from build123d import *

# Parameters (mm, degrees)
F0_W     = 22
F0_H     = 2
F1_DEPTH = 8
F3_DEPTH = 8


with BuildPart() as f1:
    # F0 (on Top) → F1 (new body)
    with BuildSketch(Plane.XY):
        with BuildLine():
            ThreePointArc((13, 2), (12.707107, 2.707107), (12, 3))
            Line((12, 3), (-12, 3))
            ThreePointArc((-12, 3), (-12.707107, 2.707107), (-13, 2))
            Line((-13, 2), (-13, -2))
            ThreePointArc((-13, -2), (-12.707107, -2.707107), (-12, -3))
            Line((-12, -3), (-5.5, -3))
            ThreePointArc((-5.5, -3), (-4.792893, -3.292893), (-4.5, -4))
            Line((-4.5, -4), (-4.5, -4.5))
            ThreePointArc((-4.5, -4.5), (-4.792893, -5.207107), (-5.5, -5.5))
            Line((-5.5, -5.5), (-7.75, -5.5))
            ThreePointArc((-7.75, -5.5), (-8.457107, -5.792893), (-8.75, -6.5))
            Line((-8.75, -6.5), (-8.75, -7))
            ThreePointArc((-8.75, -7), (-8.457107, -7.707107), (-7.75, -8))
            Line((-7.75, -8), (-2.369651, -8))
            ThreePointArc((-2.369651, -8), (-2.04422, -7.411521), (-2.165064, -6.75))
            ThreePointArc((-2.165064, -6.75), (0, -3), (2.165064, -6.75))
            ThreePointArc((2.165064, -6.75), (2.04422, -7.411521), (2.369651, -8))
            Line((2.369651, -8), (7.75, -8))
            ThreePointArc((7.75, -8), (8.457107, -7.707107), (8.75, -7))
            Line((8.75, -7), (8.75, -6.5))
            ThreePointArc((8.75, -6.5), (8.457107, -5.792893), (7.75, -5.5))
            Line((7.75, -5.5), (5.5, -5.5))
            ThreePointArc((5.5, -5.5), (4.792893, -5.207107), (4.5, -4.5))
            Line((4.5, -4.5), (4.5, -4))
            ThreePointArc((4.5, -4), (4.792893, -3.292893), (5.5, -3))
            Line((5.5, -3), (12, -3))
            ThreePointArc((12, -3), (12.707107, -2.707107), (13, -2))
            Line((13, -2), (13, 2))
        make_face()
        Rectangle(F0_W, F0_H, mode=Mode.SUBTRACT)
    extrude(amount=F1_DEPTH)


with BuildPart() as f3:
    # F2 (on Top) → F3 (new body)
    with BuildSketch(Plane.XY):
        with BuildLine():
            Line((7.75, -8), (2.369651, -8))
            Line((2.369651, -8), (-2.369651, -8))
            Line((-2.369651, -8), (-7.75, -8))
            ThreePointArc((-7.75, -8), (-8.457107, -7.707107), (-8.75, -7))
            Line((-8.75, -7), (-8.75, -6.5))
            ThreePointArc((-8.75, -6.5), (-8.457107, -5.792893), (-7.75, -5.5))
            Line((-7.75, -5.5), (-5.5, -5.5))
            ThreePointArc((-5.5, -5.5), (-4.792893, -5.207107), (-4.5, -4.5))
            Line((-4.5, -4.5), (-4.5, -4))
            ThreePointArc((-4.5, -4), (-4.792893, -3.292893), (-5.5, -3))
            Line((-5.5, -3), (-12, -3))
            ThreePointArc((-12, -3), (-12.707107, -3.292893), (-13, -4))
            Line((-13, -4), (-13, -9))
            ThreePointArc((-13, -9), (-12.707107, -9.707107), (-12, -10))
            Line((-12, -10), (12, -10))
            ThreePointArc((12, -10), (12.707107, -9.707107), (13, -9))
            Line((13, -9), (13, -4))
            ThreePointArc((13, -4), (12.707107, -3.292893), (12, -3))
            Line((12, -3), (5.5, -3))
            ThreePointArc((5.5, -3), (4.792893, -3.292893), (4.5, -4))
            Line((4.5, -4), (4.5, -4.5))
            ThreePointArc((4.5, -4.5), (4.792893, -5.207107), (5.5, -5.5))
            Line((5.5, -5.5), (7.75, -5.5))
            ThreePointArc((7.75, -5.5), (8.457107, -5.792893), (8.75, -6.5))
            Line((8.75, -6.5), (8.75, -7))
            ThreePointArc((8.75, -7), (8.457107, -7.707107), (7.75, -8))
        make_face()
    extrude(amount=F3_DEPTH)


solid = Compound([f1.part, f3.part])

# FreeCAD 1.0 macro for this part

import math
import FreeCAD as App
import Part
import Sketcher
Q = App.Units.Quantity

doc = App.newDocument("Part")
body = doc.addObject("PartDesign::Body", "Body")

sketch1 = body.newObject("Sketcher::SketchObject", "Sketch")
sketch1.AttachmentSupport = (doc.getObject("XY_Plane"), [""])
sketch1.MapMode = "FlatFace"
sketch1.addGeometry(Part.ArcOfCircle(Part.Circle(App.Vector(12.000001, 2.000001, 0), App.Vector(0, 0, 1), 0.999999), math.radians(-0.000043), math.radians(90.000043)), False)
sketch1.addGeometry(Part.LineSegment(App.Vector(12, 3, 0), App.Vector(-12, 3, 0)), False)
sketch1.addGeometry(Part.ArcOfCircle(Part.Circle(App.Vector(-12.000001, 2.000001, 0), App.Vector(0, 0, 1), 0.999999), math.radians(89.999957), math.radians(180.000043)), False)
sketch1.addGeometry(Part.LineSegment(App.Vector(-13, 2, 0), App.Vector(-13, -2, 0)), False)
sketch1.addGeometry(Part.ArcOfCircle(Part.Circle(App.Vector(-12.000001, -2.000001, 0), App.Vector(0, 0, 1), 0.999999), math.radians(179.999957), math.radians(270.000043)), False)
sketch1.addGeometry(Part.LineSegment(App.Vector(-12, -3, 0), App.Vector(-5.5, -3, 0)), False)
sketch1.addGeometry(Part.ArcOfCircle(Part.Circle(App.Vector(-5.499999, -3.999999, 0), App.Vector(0, 0, 1), 0.999999), math.radians(-0.000043), math.radians(90.000043)), False)
sketch1.addGeometry(Part.LineSegment(App.Vector(-4.5, -4, 0), App.Vector(-4.5, -4.5, 0)), False)
sketch1.addGeometry(Part.ArcOfCircle(Part.Circle(App.Vector(-5.499999, -4.500001, 0), App.Vector(0, 0, 1), 0.999999), math.radians(-90.000043), math.radians(0.000043)), False)
sketch1.addGeometry(Part.LineSegment(App.Vector(-5.5, -5.5, 0), App.Vector(-7.75, -5.5, 0)), False)
sketch1.addGeometry(Part.ArcOfCircle(Part.Circle(App.Vector(-7.750001, -6.499999, 0), App.Vector(0, 0, 1), 0.999999), math.radians(89.999957), math.radians(180.000043)), False)
sketch1.addGeometry(Part.LineSegment(App.Vector(-8.75, -6.5, 0), App.Vector(-8.75, -7, 0)), False)
sketch1.addGeometry(Part.ArcOfCircle(Part.Circle(App.Vector(-7.750001, -7.000001, 0), App.Vector(0, 0, 1), 0.999999), math.radians(179.999957), math.radians(270.000043)), False)
sketch1.addGeometry(Part.LineSegment(App.Vector(-7.75, -8, 0), App.Vector(-2.369651, -8, 0)), False)
sketch1.addGeometry(Part.ArcOfCircle(Part.Circle(App.Vector(-3.03109, -7.25, 0), App.Vector(0, 0, 1), 1), math.radians(-48.59033), math.radians(30.000003)), False)
sketch1.addGeometry(Part.ArcOfCircle(Part.Circle(App.Vector(0, -5.5, 0), App.Vector(0, 0, 1), 2.5), math.radians(-29.999989), math.radians(209.999989)), False)
sketch1.addGeometry(Part.ArcOfCircle(Part.Circle(App.Vector(3.03109, -7.25, 0), App.Vector(0, 0, 1), 1), math.radians(149.999997), math.radians(228.59033)), False)
sketch1.addGeometry(Part.LineSegment(App.Vector(2.369651, -8, 0), App.Vector(7.75, -8, 0)), False)
sketch1.addGeometry(Part.ArcOfCircle(Part.Circle(App.Vector(7.750001, -7.000001, 0), App.Vector(0, 0, 1), 0.999999), math.radians(-90.000043), math.radians(0.000043)), False)
sketch1.addGeometry(Part.LineSegment(App.Vector(8.75, -7, 0), App.Vector(8.75, -6.5, 0)), False)
sketch1.addGeometry(Part.ArcOfCircle(Part.Circle(App.Vector(7.750001, -6.499999, 0), App.Vector(0, 0, 1), 0.999999), math.radians(-0.000043), math.radians(90.000043)), False)
sketch1.addGeometry(Part.LineSegment(App.Vector(7.75, -5.5, 0), App.Vector(5.5, -5.5, 0)), False)
sketch1.addGeometry(Part.ArcOfCircle(Part.Circle(App.Vector(5.499999, -4.500001, 0), App.Vector(0, 0, 1), 0.999999), math.radians(179.999957), math.radians(270.000043)), False)
sketch1.addGeometry(Part.LineSegment(App.Vector(4.5, -4.5, 0), App.Vector(4.5, -4, 0)), False)
sketch1.addGeometry(Part.ArcOfCircle(Part.Circle(App.Vector(5.499999, -3.999999, 0), App.Vector(0, 0, 1), 0.999999), math.radians(89.999957), math.radians(180.000043)), False)
sketch1.addGeometry(Part.LineSegment(App.Vector(5.5, -3, 0), App.Vector(12, -3, 0)), False)
sketch1.addGeometry(Part.ArcOfCircle(Part.Circle(App.Vector(12.000001, -2.000001, 0), App.Vector(0, 0, 1), 0.999999), math.radians(-90.000043), math.radians(0.000043)), False)
sketch1.addGeometry(Part.LineSegment(App.Vector(13, -2, 0), App.Vector(13, 2, 0)), False)
sketch1.addGeometry(Part.LineSegment(App.Vector(11, -1, 0), App.Vector(-11, -1, 0)), False)
sketch1.addGeometry(Part.LineSegment(App.Vector(-11, -1, 0), App.Vector(-11, 1, 0)), False)
sketch1.addGeometry(Part.LineSegment(App.Vector(-11, 1, 0), App.Vector(11, 1, 0)), False)
sketch1.addGeometry(Part.LineSegment(App.Vector(11, 1, 0), App.Vector(11, -1, 0)), False)
sketch1.addConstraint(Sketcher.Constraint("Tangent", 0, 2, 1, 1))
sketch1.addConstraint(Sketcher.Constraint("Tangent", 1, 2, 2, 1))
sketch1.addConstraint(Sketcher.Constraint("Tangent", 2, 2, 3, 1))
sketch1.addConstraint(Sketcher.Constraint("Tangent", 3, 2, 4, 1))
sketch1.addConstraint(Sketcher.Constraint("Tangent", 4, 2, 5, 1))
sketch1.addConstraint(Sketcher.Constraint("Tangent", 5, 2, 6, 2))
sketch1.addConstraint(Sketcher.Constraint("Tangent", 6, 1, 7, 1))
sketch1.addConstraint(Sketcher.Constraint("Tangent", 7, 2, 8, 2))
sketch1.addConstraint(Sketcher.Constraint("Tangent", 8, 1, 9, 1))
sketch1.addConstraint(Sketcher.Constraint("Tangent", 9, 2, 10, 1))
sketch1.addConstraint(Sketcher.Constraint("Tangent", 10, 2, 11, 1))
sketch1.addConstraint(Sketcher.Constraint("Tangent", 11, 2, 12, 1))
sketch1.addConstraint(Sketcher.Constraint("Tangent", 12, 2, 13, 1))
sketch1.addConstraint(Sketcher.Constraint("Coincident", 13, 2, 14, 1))
sketch1.addConstraint(Sketcher.Constraint("Tangent", 14, 2, 15, 2))
sketch1.addConstraint(Sketcher.Constraint("Tangent", 15, 1, 16, 1))
sketch1.addConstraint(Sketcher.Constraint("Coincident", 16, 2, 17, 1))
sketch1.addConstraint(Sketcher.Constraint("Tangent", 17, 2, 18, 1))
sketch1.addConstraint(Sketcher.Constraint("Tangent", 18, 2, 19, 1))
sketch1.addConstraint(Sketcher.Constraint("Tangent", 19, 2, 20, 1))
sketch1.addConstraint(Sketcher.Constraint("Tangent", 20, 2, 21, 1))
sketch1.addConstraint(Sketcher.Constraint("Tangent", 21, 2, 22, 2))
sketch1.addConstraint(Sketcher.Constraint("Tangent", 22, 1, 23, 1))
sketch1.addConstraint(Sketcher.Constraint("Tangent", 23, 2, 24, 2))
sketch1.addConstraint(Sketcher.Constraint("Tangent", 24, 1, 25, 1))
sketch1.addConstraint(Sketcher.Constraint("Tangent", 25, 2, 26, 1))
sketch1.addConstraint(Sketcher.Constraint("Tangent", 26, 2, 27, 1))
sketch1.addConstraint(Sketcher.Constraint("Tangent", 27, 2, 0, 1))
sketch1.addConstraint(Sketcher.Constraint("Coincident", 28, 2, 29, 1))
sketch1.addConstraint(Sketcher.Constraint("Coincident", 29, 2, 30, 1))
sketch1.addConstraint(Sketcher.Constraint("Coincident", 30, 2, 31, 1))
sketch1.addConstraint(Sketcher.Constraint("Coincident", 31, 2, 28, 1))
sketch1.addConstraint(Sketcher.Constraint("Horizontal", 1))
sketch1.addConstraint(Sketcher.Constraint("Vertical", 3))
sketch1.addConstraint(Sketcher.Constraint("Horizontal", 5))
sketch1.addConstraint(Sketcher.Constraint("Vertical", 7))
sketch1.addConstraint(Sketcher.Constraint("Horizontal", 9))
sketch1.addConstraint(Sketcher.Constraint("Vertical", 11))
sketch1.addConstraint(Sketcher.Constraint("Horizontal", 13))
sketch1.addConstraint(Sketcher.Constraint("Horizontal", 17))
sketch1.addConstraint(Sketcher.Constraint("Vertical", 19))
sketch1.addConstraint(Sketcher.Constraint("Horizontal", 21))
sketch1.addConstraint(Sketcher.Constraint("Vertical", 23))
sketch1.addConstraint(Sketcher.Constraint("Horizontal", 25))
sketch1.addConstraint(Sketcher.Constraint("Vertical", 27))
sketch1.addConstraint(Sketcher.Constraint("Horizontal", 28))
sketch1.addConstraint(Sketcher.Constraint("Vertical", 29))
sketch1.addConstraint(Sketcher.Constraint("Horizontal", 30))
sketch1.addConstraint(Sketcher.Constraint("Vertical", 31))
sketch1.addConstraint(Sketcher.Constraint("Equal", 0, 2))
sketch1.addConstraint(Sketcher.Constraint("Equal", 2, 4))
sketch1.addConstraint(Sketcher.Constraint("Equal", 4, 6))
sketch1.addConstraint(Sketcher.Constraint("Equal", 6, 8))
sketch1.addConstraint(Sketcher.Constraint("Equal", 8, 10))
sketch1.addConstraint(Sketcher.Constraint("Equal", 10, 12))
sketch1.addConstraint(Sketcher.Constraint("Equal", 12, 14))
sketch1.addConstraint(Sketcher.Constraint("Equal", 14, 16))
sketch1.addConstraint(Sketcher.Constraint("Equal", 16, 18))
sketch1.addConstraint(Sketcher.Constraint("Equal", 18, 20))
sketch1.addConstraint(Sketcher.Constraint("Equal", 20, 22))
sketch1.addConstraint(Sketcher.Constraint("Equal", 22, 24))
sketch1.addConstraint(Sketcher.Constraint("Equal", 24, 26))
sketch1.addConstraint(Sketcher.Constraint("Symmetric", 0, 3, 4, 3, -1, 1))
sketch1.addConstraint(Sketcher.Constraint("Symmetric", 28, 2, 30, 2, -1, 1))
sketch1.addConstraint(Sketcher.Constraint("Symmetric", 14, 3, 16, 3, -2))
sketch1.addConstraint(Sketcher.Constraint("Symmetric", 12, 3, 18, 3, -2))
sketch1.addConstraint(Sketcher.Constraint("Symmetric", 8, 3, 22, 3, -2))
sketch1.addConstraint(Sketcher.Constraint("Horizontal", 6, 3, 24, 3))
sketch1.addConstraint(Sketcher.Constraint("Horizontal", 15, 3, 8, 1))
sketch1.addConstraint(Sketcher.Constraint("Equal", 7, 11))
sketch1.addConstraint(Sketcher.Constraint("Radius", 0, Q("0.999999 mm")))
sketch1.addConstraint(Sketcher.Constraint("Radius", 15, Q("2.5 mm")))
sketch1.addConstraint(Sketcher.Constraint("DistanceX", 1, 2, 1, 1, Q("24 mm")))
sketch1.addConstraint(Sketcher.Constraint("DistanceX", 28, 2, 28, 1, Q("22 mm")))
sketch1.addConstraint(Sketcher.Constraint("DistanceY", 3, 2, 3, 1, Q("4 mm")))
sketch1.addConstraint(Sketcher.Constraint("DistanceY", 29, 1, 29, 2, Q("2 mm")))
sketch1.addConstraint(Sketcher.Constraint("DistanceX", 5, 1, 5, 2, Q("6.5 mm")))
sketch1.addConstraint(Sketcher.Constraint("DistanceY", 7, 2, 7, 1, Q("0.5 mm")))
sketch1.addConstraint(Sketcher.Constraint("DistanceX", 9, 2, 9, 1, Q("2.25 mm")))
sketch1.addConstraint(Sketcher.Constraint("DistanceY", 14, 3, 14, 2, Q("0.5 mm")))
pad1 = body.newObject("PartDesign::Pad", "Pad")
pad1.Profile = sketch1
pad1.Length = 8
body2 = doc.addObject("PartDesign::Body", "Body001")

sketch2 = body2.newObject("Sketcher::SketchObject", "Sketch001")
sketch2.AttachmentSupport = (doc.getObject("XY_Plane001"), [""])
sketch2.MapMode = "FlatFace"
sketch2.addGeometry(Part.LineSegment(App.Vector(7.75, -8, 0), App.Vector(-7.75, -8, 0)), False)
sketch2.addGeometry(Part.ArcOfCircle(Part.Circle(App.Vector(-7.750001, -7.000001, 0), App.Vector(0, 0, 1), 0.999999), math.radians(179.999957), math.radians(270.000043)), False)
sketch2.addGeometry(Part.LineSegment(App.Vector(-8.75, -7, 0), App.Vector(-8.75, -6.5, 0)), False)
sketch2.addGeometry(Part.ArcOfCircle(Part.Circle(App.Vector(-7.750001, -6.499999, 0), App.Vector(0, 0, 1), 0.999999), math.radians(89.999957), math.radians(180.000043)), False)
sketch2.addGeometry(Part.LineSegment(App.Vector(-7.75, -5.5, 0), App.Vector(-5.5, -5.5, 0)), False)
sketch2.addGeometry(Part.ArcOfCircle(Part.Circle(App.Vector(-5.499999, -4.500001, 0), App.Vector(0, 0, 1), 0.999999), math.radians(-90.000043), math.radians(0.000043)), False)
sketch2.addGeometry(Part.LineSegment(App.Vector(-4.5, -4.5, 0), App.Vector(-4.5, -4, 0)), False)
sketch2.addGeometry(Part.ArcOfCircle(Part.Circle(App.Vector(-5.499999, -3.999999, 0), App.Vector(0, 0, 1), 0.999999), math.radians(-0.000043), math.radians(90.000043)), False)
sketch2.addGeometry(Part.LineSegment(App.Vector(-5.5, -3, 0), App.Vector(-12, -3, 0)), False)
sketch2.addGeometry(Part.ArcOfCircle(Part.Circle(App.Vector(-12.000001, -3.999999, 0), App.Vector(0, 0, 1), 0.999999), math.radians(89.999957), math.radians(180.000043)), False)
sketch2.addGeometry(Part.LineSegment(App.Vector(-13, -4, 0), App.Vector(-13, -9, 0)), False)
sketch2.addGeometry(Part.ArcOfCircle(Part.Circle(App.Vector(-12.000001, -9.000001, 0), App.Vector(0, 0, 1), 0.999999), math.radians(179.999957), math.radians(270.000043)), False)
sketch2.addGeometry(Part.LineSegment(App.Vector(-12, -10, 0), App.Vector(12, -10, 0)), False)
sketch2.addGeometry(Part.ArcOfCircle(Part.Circle(App.Vector(12.000001, -9.000001, 0), App.Vector(0, 0, 1), 0.999999), math.radians(-90.000043), math.radians(0.000043)), False)
sketch2.addGeometry(Part.LineSegment(App.Vector(13, -9, 0), App.Vector(13, -4, 0)), False)
sketch2.addGeometry(Part.ArcOfCircle(Part.Circle(App.Vector(12.000001, -3.999999, 0), App.Vector(0, 0, 1), 0.999999), math.radians(-0.000043), math.radians(90.000043)), False)
sketch2.addGeometry(Part.LineSegment(App.Vector(12, -3, 0), App.Vector(5.5, -3, 0)), False)
sketch2.addGeometry(Part.ArcOfCircle(Part.Circle(App.Vector(5.499999, -3.999999, 0), App.Vector(0, 0, 1), 0.999999), math.radians(89.999957), math.radians(180.000043)), False)
sketch2.addGeometry(Part.LineSegment(App.Vector(4.5, -4, 0), App.Vector(4.5, -4.5, 0)), False)
sketch2.addGeometry(Part.ArcOfCircle(Part.Circle(App.Vector(5.499999, -4.500001, 0), App.Vector(0, 0, 1), 0.999999), math.radians(179.999957), math.radians(270.000043)), False)
sketch2.addGeometry(Part.LineSegment(App.Vector(5.5, -5.5, 0), App.Vector(7.75, -5.5, 0)), False)
sketch2.addGeometry(Part.ArcOfCircle(Part.Circle(App.Vector(7.750001, -6.499999, 0), App.Vector(0, 0, 1), 0.999999), math.radians(-0.000043), math.radians(90.000043)), False)
sketch2.addGeometry(Part.LineSegment(App.Vector(8.75, -6.5, 0), App.Vector(8.75, -7, 0)), False)
sketch2.addGeometry(Part.ArcOfCircle(Part.Circle(App.Vector(7.750001, -7.000001, 0), App.Vector(0, 0, 1), 0.999999), math.radians(-90.000043), math.radians(0.000043)), False)
sketch2.addConstraint(Sketcher.Constraint("Tangent", 0, 2, 1, 2))
sketch2.addConstraint(Sketcher.Constraint("Tangent", 1, 1, 2, 1))
sketch2.addConstraint(Sketcher.Constraint("Tangent", 2, 2, 3, 2))
sketch2.addConstraint(Sketcher.Constraint("Tangent", 3, 1, 4, 1))
sketch2.addConstraint(Sketcher.Constraint("Tangent", 4, 2, 5, 1))
sketch2.addConstraint(Sketcher.Constraint("Tangent", 5, 2, 6, 1))
sketch2.addConstraint(Sketcher.Constraint("Tangent", 6, 2, 7, 1))
sketch2.addConstraint(Sketcher.Constraint("Tangent", 7, 2, 8, 1))
sketch2.addConstraint(Sketcher.Constraint("Tangent", 8, 2, 9, 1))
sketch2.addConstraint(Sketcher.Constraint("Tangent", 9, 2, 10, 1))
sketch2.addConstraint(Sketcher.Constraint("Tangent", 10, 2, 11, 1))
sketch2.addConstraint(Sketcher.Constraint("Tangent", 11, 2, 12, 1))
sketch2.addConstraint(Sketcher.Constraint("Tangent", 12, 2, 13, 1))
sketch2.addConstraint(Sketcher.Constraint("Tangent", 13, 2, 14, 1))
sketch2.addConstraint(Sketcher.Constraint("Tangent", 14, 2, 15, 1))
sketch2.addConstraint(Sketcher.Constraint("Tangent", 15, 2, 16, 1))
sketch2.addConstraint(Sketcher.Constraint("Tangent", 16, 2, 17, 1))
sketch2.addConstraint(Sketcher.Constraint("Tangent", 17, 2, 18, 1))
sketch2.addConstraint(Sketcher.Constraint("Tangent", 18, 2, 19, 1))
sketch2.addConstraint(Sketcher.Constraint("Tangent", 19, 2, 20, 1))
sketch2.addConstraint(Sketcher.Constraint("Tangent", 20, 2, 21, 2))
sketch2.addConstraint(Sketcher.Constraint("Tangent", 21, 1, 22, 1))
sketch2.addConstraint(Sketcher.Constraint("Tangent", 22, 2, 23, 2))
sketch2.addConstraint(Sketcher.Constraint("Tangent", 23, 1, 0, 1))
sketch2.addConstraint(Sketcher.Constraint("Horizontal", 0))
sketch2.addConstraint(Sketcher.Constraint("Vertical", 2))
sketch2.addConstraint(Sketcher.Constraint("Horizontal", 4))
sketch2.addConstraint(Sketcher.Constraint("Vertical", 6))
sketch2.addConstraint(Sketcher.Constraint("Horizontal", 8))
sketch2.addConstraint(Sketcher.Constraint("Vertical", 10))
sketch2.addConstraint(Sketcher.Constraint("Horizontal", 12))
sketch2.addConstraint(Sketcher.Constraint("Vertical", 14))
sketch2.addConstraint(Sketcher.Constraint("Horizontal", 16))
sketch2.addConstraint(Sketcher.Constraint("Vertical", 18))
sketch2.addConstraint(Sketcher.Constraint("Horizontal", 20))
sketch2.addConstraint(Sketcher.Constraint("Vertical", 22))
sketch2.addConstraint(Sketcher.Constraint("Equal", 1, 3))
sketch2.addConstraint(Sketcher.Constraint("Equal", 3, 5))
sketch2.addConstraint(Sketcher.Constraint("Equal", 5, 7))
sketch2.addConstraint(Sketcher.Constraint("Equal", 7, 9))
sketch2.addConstraint(Sketcher.Constraint("Equal", 9, 11))
sketch2.addConstraint(Sketcher.Constraint("Equal", 11, 13))
sketch2.addConstraint(Sketcher.Constraint("Equal", 13, 15))
sketch2.addConstraint(Sketcher.Constraint("Equal", 15, 17))
sketch2.addConstraint(Sketcher.Constraint("Equal", 17, 19))
sketch2.addConstraint(Sketcher.Constraint("Equal", 19, 21))
sketch2.addConstraint(Sketcher.Constraint("Equal", 21, 23))
sketch2.addConstraint(Sketcher.Constraint("Symmetric", 9, 3, 15, 3, -2))
sketch2.addConstraint(Sketcher.Constraint("Symmetric", 5, 3, 19, 3, -2))
sketch2.addConstraint(Sketcher.Constraint("Equal", 4, 20))
sketch2.addConstraint(Sketcher.Constraint("Equal", 2, 6))
sketch2.addConstraint(Sketcher.Constraint("Radius", 1, Q("0.999999 mm")))
sketch2.addConstraint(Sketcher.Constraint("DistanceX", 12, 1, 12, 2, Q("24 mm")))
sketch2.addConstraint(Sketcher.Constraint("DistanceY", 10, 2, 10, 1, Q("5 mm")))
sketch2.addConstraint(Sketcher.Constraint("DistanceX", 0, 2, 0, 1, Q("15.5 mm")))
sketch2.addConstraint(Sketcher.Constraint("DistanceX", 8, 2, 8, 1, Q("6.5 mm")))
sketch2.addConstraint(Sketcher.Constraint("DistanceY", 2, 1, 2, 2, Q("0.5 mm")))
sketch2.addConstraint(Sketcher.Constraint("DistanceY", 1, 3, -1, 1, Q("7.000001 mm")))
pad2 = body2.newObject("PartDesign::Pad", "Pad001")
pad2.Profile = sketch2
pad2.Length = 8

doc.recompute()
